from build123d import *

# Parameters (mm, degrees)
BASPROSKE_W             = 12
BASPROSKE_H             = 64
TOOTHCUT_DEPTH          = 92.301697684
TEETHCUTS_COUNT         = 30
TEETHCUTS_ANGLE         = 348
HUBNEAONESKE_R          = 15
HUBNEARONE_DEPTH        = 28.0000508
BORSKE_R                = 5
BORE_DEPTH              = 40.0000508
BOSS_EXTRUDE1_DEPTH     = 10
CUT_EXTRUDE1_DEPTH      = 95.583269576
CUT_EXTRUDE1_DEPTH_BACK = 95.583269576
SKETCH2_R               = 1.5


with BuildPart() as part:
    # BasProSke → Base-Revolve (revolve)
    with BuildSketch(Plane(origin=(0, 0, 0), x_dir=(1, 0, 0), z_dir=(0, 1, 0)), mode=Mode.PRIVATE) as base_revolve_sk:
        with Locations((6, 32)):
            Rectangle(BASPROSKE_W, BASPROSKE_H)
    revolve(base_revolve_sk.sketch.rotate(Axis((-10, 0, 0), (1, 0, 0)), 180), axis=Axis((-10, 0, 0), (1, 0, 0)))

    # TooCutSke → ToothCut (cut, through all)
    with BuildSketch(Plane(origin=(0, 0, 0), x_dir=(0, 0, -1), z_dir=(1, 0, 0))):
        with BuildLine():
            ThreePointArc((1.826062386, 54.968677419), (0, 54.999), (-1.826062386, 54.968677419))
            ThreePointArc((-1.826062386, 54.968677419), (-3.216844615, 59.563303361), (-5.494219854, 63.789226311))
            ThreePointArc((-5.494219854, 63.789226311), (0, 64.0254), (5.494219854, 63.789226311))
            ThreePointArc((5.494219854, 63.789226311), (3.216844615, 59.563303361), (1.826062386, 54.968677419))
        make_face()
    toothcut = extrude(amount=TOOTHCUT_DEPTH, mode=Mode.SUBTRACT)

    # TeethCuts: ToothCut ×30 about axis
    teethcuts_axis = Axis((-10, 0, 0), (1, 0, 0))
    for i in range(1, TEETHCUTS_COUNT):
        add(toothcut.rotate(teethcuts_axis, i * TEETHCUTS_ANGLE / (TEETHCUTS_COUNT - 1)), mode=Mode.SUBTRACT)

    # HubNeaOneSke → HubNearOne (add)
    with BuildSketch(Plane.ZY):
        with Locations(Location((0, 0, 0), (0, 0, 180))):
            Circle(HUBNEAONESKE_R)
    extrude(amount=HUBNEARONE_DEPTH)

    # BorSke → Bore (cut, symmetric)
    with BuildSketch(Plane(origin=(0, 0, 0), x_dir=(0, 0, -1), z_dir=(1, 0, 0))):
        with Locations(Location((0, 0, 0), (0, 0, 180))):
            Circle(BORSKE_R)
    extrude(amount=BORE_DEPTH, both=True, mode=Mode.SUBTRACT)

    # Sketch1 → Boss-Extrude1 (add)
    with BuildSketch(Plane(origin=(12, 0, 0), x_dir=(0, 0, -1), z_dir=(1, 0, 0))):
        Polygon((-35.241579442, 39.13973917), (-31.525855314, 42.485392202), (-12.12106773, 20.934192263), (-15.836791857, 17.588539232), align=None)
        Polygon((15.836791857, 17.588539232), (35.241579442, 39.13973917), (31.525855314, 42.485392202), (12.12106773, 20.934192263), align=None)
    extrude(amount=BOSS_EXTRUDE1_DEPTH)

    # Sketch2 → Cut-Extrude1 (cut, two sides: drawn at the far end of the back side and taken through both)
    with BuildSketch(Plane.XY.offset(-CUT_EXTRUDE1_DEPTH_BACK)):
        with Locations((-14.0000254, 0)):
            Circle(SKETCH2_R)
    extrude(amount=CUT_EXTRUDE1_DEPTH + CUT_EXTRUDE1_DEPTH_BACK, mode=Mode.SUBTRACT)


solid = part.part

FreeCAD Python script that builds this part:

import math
import FreeCAD as App
import Part
import Sketcher
from FreeCAD import Vector
Q = App.Units.Quantity


def add_polygon(sketch, points):
    """Adds a closed chain of lines whose ends are joined by coincident constraints."""
    first, n = sketch.GeometryCount, len(points)
    for a, b in zip(points, points[1:] + points[:1]):
        sketch.addGeometry(Part.LineSegment(App.Vector(*a, 0), App.Vector(*b, 0)), False)
    for i in range(n):
        sketch.addConstraint(Sketcher.Constraint("Coincident", first + i, 2, first + (i + 1) % n, 1))

doc = App.newDocument("Part")
body = doc.addObject("PartDesign::Body", "Body")

# Sketch on XZ plane
sketch1 = doc.addObject("Sketcher::SketchObject", "Sketch")
body.addObject(sketch1)
sketch1.AttachmentSupport = (doc.XZ_Plane, [""])
sketch1.MapMode = "FlatFace"
add_polygon(sketch1, [(0, -64), (0, 0), (12, 0), (12, -64)])  # lines 0-3
sketch1.addConstraint(Sketcher.Constraint("Vertical", 0))
sketch1.addConstraint(Sketcher.Constraint("Horizontal", 1))
sketch1.addConstraint(Sketcher.Constraint("Vertical", 2))
sketch1.addConstraint(Sketcher.Constraint("Horizontal", 3))
sketch1.addConstraint(Sketcher.Constraint("Coincident", 0, 2, -1, 1))
sketch1.addConstraint(Sketcher.Constraint("DistanceX", 1, 1, 1, 2, Q("12 mm")))
sketch1.addConstraint(Sketcher.Constraint("DistanceY", 0, 1, 0, 2, Q("64 mm")))
revolution = doc.addObject("PartDesign::Revolution", "Revolution")
body.addObject(revolution)
revolution.Profile = sketch1
revolution.ReferenceAxis = (sketch1, ["H_Axis"])
revolution.Angle = 360

# Sketch on YZ plane
sketch2 = doc.addObject("Sketcher::SketchObject", "Sketch001")
body.addObject(sketch2)
sketch2.AttachmentSupport = (doc.YZ_Plane, [""])
sketch2.MapMode = "FlatFace"
sketch2.addGeometry(Part.ArcOfCircle(Part.Circle(Vector(0, 0, 0), Vector(0, 0, 1), 55), math.radians(-1.9), math.radians(1.9)), False)
sketch2.addGeometry(Part.ArcOfCircle(Part.Circle(Vector(50.3, -25.4, 0), Vector(0, 0, 1), 24), math.radians(56), math.radians(79)), False)
sketch2.addGeometry(Part.ArcOfCircle(Part.Circle(Vector(0, 0, 0), Vector(0, 0, 1), 64), math.radians(-4.92), math.radians(4.92)), False)
sketch2.addGeometry(Part.ArcOfCircle(Part.Circle(Vector(50.3, 25.4, 0), Vector(0, 0, 1), 24), math.radians(-79), math.radians(-56)), False)
sketch2.addConstraint(Sketcher.Constraint("Coincident", 0, 1, 1, 2))
sketch2.addConstraint(Sketcher.Constraint("Coincident", 1, 1, 2, 1))
sketch2.addConstraint(Sketcher.Constraint("Coincident", 2, 2, 3, 2))
sketch2.addConstraint(Sketcher.Constraint("Coincident", 3, 1, 0, 2))
sketch2.addConstraint(Sketcher.Constraint("Coincident", 0, 3, -1, 1))
sketch2.addConstraint(Sketcher.Constraint("Coincident", 2, 3, -1, 1))
sketch2.addConstraint(Sketcher.Constraint("Equal", 1, 3))
sketch2.addConstraint(Sketcher.Constraint("Symmetric", 1, 3, 3, 3, -1))
sketch2.addConstraint(Sketcher.Constraint("Radius", 1, Q("24 mm")))
sketch2.addConstraint(Sketcher.Constraint("Radius", 0, Q("54.999001 mm")))
sketch2.addConstraint(Sketcher.Constraint("Radius", 2, Q("64.0254 mm")))
sketch2.addConstraint(Sketcher.Constraint("DistanceY", 1, 1, -1, 1, Q("5.49422 mm")))
sketch2.addConstraint(Sketcher.Constraint("DistanceY", 1, 3, 0, 1, Q("23.55093 mm")))
pocket1 = doc.addObject("PartDesign::Pocket", "Pocket")
body.addObject(pocket1)
pocket1.Profile = sketch2
pocket1.Type = "ThroughAll"
pocket1.Reversed = True
doc.recompute()

polarpattern = doc.addObject("PartDesign::PolarPattern", "PolarPattern")
body.addObject(polarpattern)
polarpattern.Originals = [pocket1]
polarpattern.Axis = (doc.X_Axis, [""])
polarpattern.Angle = 360
polarpattern.Occurrences = 30
body.Tip = polarpattern

# Sketch on YZ plane
sketch3 = doc.addObject("Sketcher::SketchObject", "Sketch002")
body.addObject(sketch3)
sketch3.AttachmentSupport = (doc.YZ_Plane, [""])
sketch3.MapMode = "FlatFace"
sketch3.addGeometry(Part.Circle(Vector(0, 0, 0), Vector(0, 0, 1), 15), False)
sketch3.addConstraint(Sketcher.Constraint("Coincident", 0, 3, -1, 1))
sketch3.addConstraint(Sketcher.Constraint("Diameter", 0, Q("30 mm")))
pad1 = doc.addObject("PartDesign::Pad", "Pad")
body.addObject(pad1)
pad1.Profile = sketch3
pad1.Length = 28.000051
pad1.Reversed = True

# Sketch on YZ plane
sketch4 = doc.addObject("Sketcher::SketchObject", "Sketch003")
body.addObject(sketch4)
sketch4.AttachmentSupport = (doc.YZ_Plane, [""])
sketch4.MapMode = "FlatFace"
sketch4.addGeometry(Part.Circle(Vector(0, 0, 0), Vector(0, 0, 1), 5), False)
sketch4.addConstraint(Sketcher.Constraint("Coincident", 0, 3, -1, 1))
sketch4.addConstraint(Sketcher.Constraint("Diameter", 0, Q("10 mm")))
pocket2 = doc.addObject("PartDesign::Pocket", "Pocket001")
body.addObject(pocket2)
pocket2.Profile = sketch4
pocket2.Length = 80.000102
pocket2.Midplane = True

# Sketch on YZ plane
sketch5 = doc.addObject("Sketcher::SketchObject", "Sketch004")
body.addObject(sketch5)
sketch5.AttachmentSupport = (doc.YZ_Plane, [""])
sketch5.MapMode = "FlatFace"
sketch5.AttachmentOffset = App.Placement(Vector(0, 0, 12), App.Rotation())
add_polygon(sketch5, [(42.5, 31.5), (39.1, 35.2), (17.6, 15.8), (20.9, 12.1)])  # lines 0-3
add_polygon(sketch5, [(17.6, -15.8), (39.1, -35.2), (42.5, -31.5), (20.9, -12.1)])  # lines 4-7
sketch5.addConstraint(Sketcher.Constraint("Symmetric", 0, 2, 4, 2, -1))
sketch5.addConstraint(Sketcher.Constraint("Symmetric", 3, 2, 5, 2, -1))
sketch5.addConstraint(Sketcher.Constraint("Symmetric", 2, 2, 6, 2, -1))
sketch5.addConstraint(Sketcher.Constraint("Symmetric", 1, 2, 7, 2, -1))
sketch5.addConstraint(Sketcher.Constraint("Perpendicular", 0, 1))
sketch5.addConstraint(Sketcher.Constraint("Perpendicular", 1, 2))
sketch5.addConstraint(Sketcher.Constraint("Perpendicular", 2, 3))
sketch5.addConstraint(Sketcher.Constraint("Angle", 0, Q("132 deg")))
sketch5.addConstraint(Sketcher.Constraint("Distance", 0, Q("5 mm")))
sketch5.addConstraint(Sketcher.Constraint("Distance", 1, Q("29 mm")))
sketch5.addConstraint(Sketcher.Constraint("DistanceX", -1, 1, 0, 2, Q("39.139739 mm")))
sketch5.addConstraint(Sketcher.Constraint("DistanceY", -1, 1, 0, 2, Q("35.241579 mm")))
pad2 = doc.addObject("PartDesign::Pad", "Pad001")
body.addObject(pad2)
pad2.Profile = sketch5
pad2.Length = 10

# Sketch on XY plane
sketch6 = doc.addObject("Sketcher::SketchObject", "Sketch005")
body.addObject(sketch6)
sketch6.AttachmentSupport = (doc.XY_Plane, [""])
sketch6.MapMode = "FlatFace"
sketch6.addGeometry(Part.Circle(Vector(-14.000025, 0, 0), Vector(0, 0, 1), 1.5), False)
sketch6.addConstraint(Sketcher.Constraint("PointOnObject", 0, 3, -1))
sketch6.addConstraint(Sketcher.Constraint("Diameter", 0, Q("3 mm")))
sketch6.addConstraint(Sketcher.Constraint("DistanceX", 0, 3, -1, 1, Q("14.000025 mm")))
pocket3 = doc.addObject("PartDesign::Pocket", "Pocket002")
body.addObject(pocket3)
pocket3.Profile = sketch6
pocket3.Type = "ThroughAll"
pocket3.Midplane = True

doc.recompute()
